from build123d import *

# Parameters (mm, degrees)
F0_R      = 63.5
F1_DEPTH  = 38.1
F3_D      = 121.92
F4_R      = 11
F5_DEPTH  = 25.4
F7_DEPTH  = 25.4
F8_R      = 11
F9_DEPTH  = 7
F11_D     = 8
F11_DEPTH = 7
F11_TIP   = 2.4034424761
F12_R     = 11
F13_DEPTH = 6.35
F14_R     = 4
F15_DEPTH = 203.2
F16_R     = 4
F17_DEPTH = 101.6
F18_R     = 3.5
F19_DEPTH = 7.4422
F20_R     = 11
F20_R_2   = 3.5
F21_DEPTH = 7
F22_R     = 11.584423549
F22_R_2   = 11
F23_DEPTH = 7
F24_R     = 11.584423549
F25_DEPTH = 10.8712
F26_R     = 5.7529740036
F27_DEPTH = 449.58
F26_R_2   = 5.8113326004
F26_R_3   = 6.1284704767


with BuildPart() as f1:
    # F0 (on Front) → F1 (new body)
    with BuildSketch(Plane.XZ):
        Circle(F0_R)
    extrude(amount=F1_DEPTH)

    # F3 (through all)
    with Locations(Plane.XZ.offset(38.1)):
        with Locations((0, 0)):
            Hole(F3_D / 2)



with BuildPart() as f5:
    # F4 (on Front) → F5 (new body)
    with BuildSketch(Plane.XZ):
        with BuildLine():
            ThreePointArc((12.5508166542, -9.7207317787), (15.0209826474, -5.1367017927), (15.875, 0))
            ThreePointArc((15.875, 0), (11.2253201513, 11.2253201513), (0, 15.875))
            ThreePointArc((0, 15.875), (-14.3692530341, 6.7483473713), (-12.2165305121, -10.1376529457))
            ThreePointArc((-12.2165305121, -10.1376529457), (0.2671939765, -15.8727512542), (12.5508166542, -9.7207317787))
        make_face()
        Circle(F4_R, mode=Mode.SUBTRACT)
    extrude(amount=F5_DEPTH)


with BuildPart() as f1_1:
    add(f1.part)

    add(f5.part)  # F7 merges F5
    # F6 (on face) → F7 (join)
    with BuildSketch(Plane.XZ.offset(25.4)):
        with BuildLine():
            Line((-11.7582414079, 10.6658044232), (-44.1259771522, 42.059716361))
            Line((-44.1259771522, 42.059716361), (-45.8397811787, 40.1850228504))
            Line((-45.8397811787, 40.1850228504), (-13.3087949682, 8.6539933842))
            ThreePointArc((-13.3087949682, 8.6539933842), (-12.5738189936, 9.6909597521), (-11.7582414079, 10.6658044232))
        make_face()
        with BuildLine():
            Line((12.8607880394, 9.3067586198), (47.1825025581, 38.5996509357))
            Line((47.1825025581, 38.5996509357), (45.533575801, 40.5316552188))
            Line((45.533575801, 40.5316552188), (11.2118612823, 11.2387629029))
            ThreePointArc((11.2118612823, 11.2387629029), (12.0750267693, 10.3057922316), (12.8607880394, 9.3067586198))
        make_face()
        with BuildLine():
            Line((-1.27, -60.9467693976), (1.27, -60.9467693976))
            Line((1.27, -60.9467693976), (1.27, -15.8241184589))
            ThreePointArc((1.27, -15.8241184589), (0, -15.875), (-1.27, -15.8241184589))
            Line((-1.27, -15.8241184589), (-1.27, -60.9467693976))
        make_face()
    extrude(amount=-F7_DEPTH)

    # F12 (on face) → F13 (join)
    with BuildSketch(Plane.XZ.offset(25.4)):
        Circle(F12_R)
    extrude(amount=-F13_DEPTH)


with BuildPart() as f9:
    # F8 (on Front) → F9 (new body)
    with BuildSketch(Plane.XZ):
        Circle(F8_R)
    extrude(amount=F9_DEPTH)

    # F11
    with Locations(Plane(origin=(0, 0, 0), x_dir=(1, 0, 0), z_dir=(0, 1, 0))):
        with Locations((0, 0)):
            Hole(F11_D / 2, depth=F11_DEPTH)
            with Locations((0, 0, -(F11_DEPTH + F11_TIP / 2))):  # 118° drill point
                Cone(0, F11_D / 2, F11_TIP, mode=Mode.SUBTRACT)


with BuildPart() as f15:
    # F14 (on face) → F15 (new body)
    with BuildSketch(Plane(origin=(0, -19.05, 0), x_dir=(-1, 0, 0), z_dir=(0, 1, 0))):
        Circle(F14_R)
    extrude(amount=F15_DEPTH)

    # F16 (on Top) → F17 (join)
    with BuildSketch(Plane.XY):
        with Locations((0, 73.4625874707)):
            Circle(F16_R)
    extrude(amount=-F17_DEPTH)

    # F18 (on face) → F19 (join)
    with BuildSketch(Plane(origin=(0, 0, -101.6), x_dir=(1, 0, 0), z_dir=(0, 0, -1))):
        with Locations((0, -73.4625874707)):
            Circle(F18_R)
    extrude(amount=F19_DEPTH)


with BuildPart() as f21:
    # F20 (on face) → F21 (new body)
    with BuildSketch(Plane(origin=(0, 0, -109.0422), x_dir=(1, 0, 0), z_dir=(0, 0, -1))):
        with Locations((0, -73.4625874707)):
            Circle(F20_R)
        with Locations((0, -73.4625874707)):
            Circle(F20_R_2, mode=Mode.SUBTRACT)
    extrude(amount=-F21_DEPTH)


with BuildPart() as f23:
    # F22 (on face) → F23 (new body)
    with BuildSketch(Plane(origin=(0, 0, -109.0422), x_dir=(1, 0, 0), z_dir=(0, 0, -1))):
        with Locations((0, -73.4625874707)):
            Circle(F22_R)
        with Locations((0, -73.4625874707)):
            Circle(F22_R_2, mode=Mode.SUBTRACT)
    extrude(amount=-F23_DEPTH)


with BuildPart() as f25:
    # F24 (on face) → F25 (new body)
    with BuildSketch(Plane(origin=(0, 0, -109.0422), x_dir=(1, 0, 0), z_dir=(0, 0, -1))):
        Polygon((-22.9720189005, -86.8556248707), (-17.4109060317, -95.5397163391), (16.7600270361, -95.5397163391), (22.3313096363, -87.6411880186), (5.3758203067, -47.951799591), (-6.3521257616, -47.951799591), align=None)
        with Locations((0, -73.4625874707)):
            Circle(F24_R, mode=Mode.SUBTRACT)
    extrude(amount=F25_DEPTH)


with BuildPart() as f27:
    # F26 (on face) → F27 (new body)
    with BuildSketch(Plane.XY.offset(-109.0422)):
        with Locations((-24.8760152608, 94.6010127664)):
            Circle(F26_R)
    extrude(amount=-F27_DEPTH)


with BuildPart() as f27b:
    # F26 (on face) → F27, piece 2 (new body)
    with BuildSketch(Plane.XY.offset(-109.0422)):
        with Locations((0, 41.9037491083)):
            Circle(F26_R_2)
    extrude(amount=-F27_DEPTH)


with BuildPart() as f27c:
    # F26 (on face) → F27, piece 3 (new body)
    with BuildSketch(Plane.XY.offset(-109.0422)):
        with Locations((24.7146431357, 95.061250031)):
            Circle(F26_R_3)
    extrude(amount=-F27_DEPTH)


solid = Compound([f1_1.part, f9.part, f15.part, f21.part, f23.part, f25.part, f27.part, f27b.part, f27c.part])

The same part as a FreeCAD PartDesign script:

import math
import FreeCAD as App
import Part
import Sketcher

V = App.Vector
Q = App.Units.Quantity

doc = App.newDocument("Part")
params = doc.addObject("Spreadsheet::Sheet", "Params")
for row, (alias, value) in enumerate([
    ("sketch1_diameter", "5 in"),
    ("pad1_length", "1.5 in"),
    ("sketch2_diameter", "4.8 in"),
    ("hole_diameter", "4.8 in"),
    ("sketch3_radius", "0.625 in"),
    ("pad2_length", "1 in"),
    ("sketch4_width", "0.1 in"),
    ("sketch4_radius", "0.625 in"),
    ("sketch4_length", "0.1 in"),
    ("pad3_length", "1 in"),
    ("pad4_length", "0.25 in"),
    ("pad5_length", "7 mm"),
    ("hole2_diameter", "8 mm"),
    ("hole2_depth", "7 mm"),
    ("pad6_length", "8 in"),
    ("pad7_length", "4 in"),
    ("pad8_length", "0.293 in"),
    ("pad9_length", "7 mm"),
    ("pad10_length", "7 mm"),
    ("pad11_length", "0.428 in"),
    ("pad12_length", "17.7 in"),
    ("pad13_length", "17.7 in"),
    ("pad14_length", "17.7 in"),
], start=1):
    params.set(f"A{row}", alias)
    params.set(f"B{row}", "=" + value)
    params.setAlias(f"B{row}", alias)

body = doc.addObject("PartDesign::Body", "Body")

# Sketch on XZ plane
sketch1 = body.newObject("Sketcher::SketchObject", "Sketch")
sketch1.AttachmentSupport = (doc.getObject("XZ_Plane"), [""])
sketch1.MapMode = "FlatFace"
sketch1.addGeometry(Part.Circle(V(0, 0, 0), V(0, 0, 1), 63.5), False)
sketch1.addConstraint([
    Sketcher.Constraint("Coincident", 0, 3, -1, 1),
    Sketcher.Constraint("Diameter", 0, Q("5 in")),
])
sketch1.setExpression("Constraints[1]", "Params.sketch1_diameter")
pad1 = body.newObject("PartDesign::Pad", "Pad")
pad1.Profile = sketch1
pad1.setExpression("Length", "Params.pad1_length")

# Sketch on XZ plane
sketch2 = body.newObject("Sketcher::SketchObject", "Sketch001")
sketch2.AttachmentSupport = (doc.getObject("XZ_Plane"), [""])
sketch2.MapMode = "FlatFace"
sketch2.AttachmentOffset = App.Placement(V(0, 0, 1.5 * 25.4), App.Rotation())
sketch2.addGeometry(Part.Circle(V(0, 0, 0), V(0, 0, 1), 60.96), False)
sketch2.addConstraint([
    Sketcher.Constraint("Coincident", 0, 3, -1, 1),
    Sketcher.Constraint("Diameter", 0, Q("4.8 in")),
])
sketch2.setExpression("Constraints[1]", "Params.sketch2_diameter")
doc.recompute()
hole = body.newObject("PartDesign::Hole", "Hole")
hole.Profile = sketch2
hole.ThreadType = "None"
hole.setExpression("Diameter", "Params.hole_diameter")
hole.DepthType = "ThroughAll"
body2 = doc.addObject("PartDesign::Body", "Body001")

# Sketch on XZ plane
sketch3 = body2.newObject("Sketcher::SketchObject", "Sketch002")
sketch3.AttachmentSupport = (doc.getObject("XZ_Plane001"), [""])
sketch3.MapMode = "FlatFace"
sketch3.addGeometry([
    Part.ArcOfCircle(Part.Circle(V(0, 0, 0), V(0, 0, 1), 15.875), math.radians(-37.758137), math.radians(0)),  # 0
    Part.ArcOfCircle(Part.Circle(V(0, 0, 0), V(0, 0, 1), 15.875), math.radians(0), math.radians(90)),  # 1
    Part.ArcOfCircle(Part.Circle(V(0, 0, 0), V(0, 0, 1), 15.875), math.radians(90), math.radians(219.686932)),  # 2
    Part.ArcOfCircle(Part.Circle(V(0, 0, 0), V(0, 0, 1), 15.875), math.radians(-140.313068), math.radians(-37.758137)),  # 3
    Part.Circle(V(0, 0, 0), V(0, 0, 1), 11),  # 4
], False)
sketch3.addConstraint([
    Sketcher.Constraint("Tangent", 0, 2, 1, 1),
    Sketcher.Constraint("Tangent", 1, 2, 2, 1),
    Sketcher.Constraint("Tangent", 2, 2, 3, 1),
    Sketcher.Constraint("Tangent", 3, 2, 0, 1),
    Sketcher.Constraint("Coincident", 0, 3, -1, 1),
    Sketcher.Constraint("Coincident", 4, 3, -1, 1),
    Sketcher.Constraint("Equal", 0, 1),
    Sketcher.Constraint("PointOnObject", 0, 2, -1),
    Sketcher.Constraint("PointOnObject", 1, 2, -2),
    Sketcher.Constraint("Radius", 0, Q("0.625 in")),
    Sketcher.Constraint("Diameter", 4, 22.0),
    Sketcher.Constraint("DistanceX", 2, 2, -1, 1, 12.216531),
    Sketcher.Constraint("DistanceY", 3, 2, -1, 1, 9.720732),
])
sketch3.setExpression("Constraints[9]", "Params.sketch3_radius")
pad2 = body2.newObject("PartDesign::Pad", "Pad001")
pad2.Profile = sketch3
pad2.setExpression("Length", "Params.pad2_length")
body.AllowCompound = True
doc.recompute()

boolean = body.newObject("PartDesign::Boolean", "Boolean")
boolean.Type = "Fuse"
boolean.addObjects([body2])

# Sketch on XZ plane
sketch4 = body.newObject("Sketcher::SketchObject", "Sketch003")
sketch4.AttachmentSupport = (doc.getObject("XZ_Plane"), [""])
sketch4.MapMode = "FlatFace"
sketch4.AttachmentOffset = App.Placement(V(0, 0, 1 * 25.4), App.Rotation())
sketch4.addGeometry([
    Part.LineSegment(V(-11.758241, 10.665804, 0), V(-44.125977, 42.059716, 0)),  # 0
    Part.LineSegment(V(-44.125977, 42.059716, 0), V(-45.839781, 40.185023, 0)),  # 1
    Part.LineSegment(V(-45.839781, 40.185023, 0), V(-13.308795, 8.653993, 0)),  # 2
    Part.ArcOfCircle(Part.Circle(V(0, 0, 0), V(0, 0, 1), 15.875), math.radians(137.789085), math.radians(146.966217)),  # 3
    Part.LineSegment(V(12.860788, 9.306759, 0), V(47.182503, 38.599651, 0)),  # 4
    Part.LineSegment(V(47.182503, 38.599651, 0), V(45.533576, 40.531655, 0)),  # 5
    Part.LineSegment(V(45.533576, 40.531655, 0), V(11.211861, 11.238763, 0)),  # 6
    Part.ArcOfCircle(Part.Circle(V(0, 0, 0), V(0, 0, 1), 15.875), math.radians(35.891524), math.radians(45.068655)),  # 7
    Part.LineSegment(V(-1.27, -60.946769, 0), V(1.27, -60.946769, 0)),  # 8
    Part.LineSegment(V(1.27, -60.946769, 0), V(1.27, -15.824118, 0)),  # 9
    Part.ArcOfCircle(Part.Circle(V(0, 0, 0), V(0, 0, 1), 15.875), math.radians(-94.588566), math.radians(-85.411434)),  # 10
    Part.LineSegment(V(-1.27, -15.824118, 0), V(-1.27, -60.946769, 0)),  # 11
], False)
sketch4.addConstraint([
    Sketcher.Constraint("Coincident", 0, 2, 1, 1),
    Sketcher.Constraint("Coincident", 1, 2, 2, 1),
    Sketcher.Constraint("Coincident", 2, 2, 3, 2),
    Sketcher.Constraint("Coincident", 3, 1, 0, 1),
    Sketcher.Constraint("Coincident", 4, 2, 5, 1),
    Sketcher.Constraint("Coincident", 5, 2, 6, 1),
    Sketcher.Constraint("Coincident", 6, 2, 7, 2),
    Sketcher.Constraint("Coincident", 7, 1, 4, 1),
    Sketcher.Constraint("Coincident", 8, 2, 9, 1),
    Sketcher.Constraint("Coincident", 9, 2, 10, 2),
    Sketcher.Constraint("Coincident", 10, 1, 11, 1),
    Sketcher.Constraint("Coincident", 11, 2, 8, 1),
    Sketcher.Constraint("Horizontal", 8),
    Sketcher.Constraint("Vertical", 9),
    Sketcher.Constraint("Vertical", 11),
    Sketcher.Constraint("Coincident", 3, 3, -1, 1),
    Sketcher.Constraint("Coincident", 7, 3, -1, 1),
    Sketcher.Constraint("Coincident", 10, 3, -1, 1),
    Sketcher.Constraint("Equal", 3, 7),
    Sketcher.Constraint("Equal", 7, 10),
    Sketcher.Constraint("Perpendicular", 4, 5),
    Sketcher.Constraint("Perpendicular", 5, 6),
    Sketcher.Constraint("Horizontal", 9, 2, 10, 1),
    Sketcher.Constraint("Equal", 1, 5),
    Sketcher.Constraint("Equal", 4, 6),
    Sketcher.Constraint("DistanceX", 8, 1, 8, 2, Q("0.1 in")),
    Sketcher.Constraint("Radius", 3, Q("0.625 in")),
    Sketcher.Constraint("Distance", 1, Q("0.1 in")),
    Sketcher.Constraint("DistanceY", 9, 1, 9, 2, 45.122651),
    Sketcher.Constraint("Distance", 0, 45.091552),
    Sketcher.Constraint("Distance", 4, 45.122651),
    Sketcher.Constraint("DistanceX", 1, 2, -1, 1, 45.839781),
    Sketcher.Constraint("DistanceX", 3, 1, -1, 1, 11.758241),
    Sketcher.Constraint("DistanceY", -1, 1, 4, 2, 38.599651),
    Sketcher.Constraint("DistanceY", 2, 2, 1, 2, 31.531029),
    Sketcher.Constraint("DistanceY", 2, 2, 3, 1, 2.011811),
])
sketch4.setExpression("Constraints[25]", "Params.sketch4_width")
sketch4.setExpression("Constraints[26]", "Params.sketch4_radius")
sketch4.setExpression("Constraints[27]", "Params.sketch4_length")
pad3 = body.newObject("PartDesign::Pad", "Pad002")
pad3.Profile = sketch4
pad3.setExpression("Length", "Params.pad3_length")
pad3.Reversed = True

# Sketch on XZ plane
sketch5 = body.newObject("Sketcher::SketchObject", "Sketch004")
sketch5.AttachmentSupport = (doc.getObject("XZ_Plane"), [""])
sketch5.MapMode = "FlatFace"
sketch5.AttachmentOffset = App.Placement(V(0, 0, 1 * 25.4), App.Rotation())
sketch5.addGeometry(Part.Circle(V(0, 0, 0), V(0, 0, 1), 11), False)
sketch5.addConstraint([
    Sketcher.Constraint("Coincident", 0, 3, -1, 1),
    Sketcher.Constraint("Diameter", 0, 22.0),
])
pad4 = body.newObject("PartDesign::Pad", "Pad003")
pad4.Profile = sketch5
pad4.setExpression("Length", "Params.pad4_length")
pad4.Reversed = True
body3 = doc.addObject("PartDesign::Body", "Body002")

# Sketch on XZ plane
sketch6 = body3.newObject("Sketcher::SketchObject", "Sketch005")
sketch6.AttachmentSupport = (doc.getObject("XZ_Plane002"), [""])
sketch6.MapMode = "FlatFace"
sketch6.addGeometry(Part.Circle(V(0, 0, 0), V(0, 0, 1), 11), False)
sketch6.addConstraint([
    Sketcher.Constraint("Coincident", 0, 3, -1, 1),
    Sketcher.Constraint("Diameter", 0, 22.0),
])
pad5 = body3.newObject("PartDesign::Pad", "Pad004")
pad5.Profile = sketch6
pad5.setExpression("Length", "Params.pad5_length")

# Sketch on XZ plane
sketch7 = body3.newObject("Sketcher::SketchObject", "Sketch006")
sketch7.AttachmentSupport = (doc.getObject("XZ_Plane002"), [""])
sketch7.MapMode = "FlatFace"
sketch7.addGeometry(Part.Circle(V(0, 0, 0), V(0, 0, 1), 4), False)
sketch7.addConstraint([
    Sketcher.Constraint("Coincident", 0, 3, -1, 1),
    Sketcher.Constraint("Diameter", 0, 8.0),
])
doc.recompute()
hole2 = body3.newObject("PartDesign::Hole", "Hole001")
hole2.Profile = sketch7
hole2.ThreadType = "None"
hole2.setExpression("Diameter", "Params.hole2_diameter")
hole2.DepthType = "Dimension"
hole2.setExpression("Depth", "Params.hole2_depth")
hole2.DrillPoint = "Angled"
hole2.DrillPointAngle = 118
hole2.Reversed = True
body4 = doc.addObject("PartDesign::Body", "Body003")

# Sketch on XZ plane
sketch8 = body4.newObject("Sketcher::SketchObject", "Sketch007")
sketch8.AttachmentSupport = (doc.getObject("XZ_Plane003"), [""])
sketch8.MapMode = "FlatFace"
sketch8.AttachmentOffset = App.Placement(V(0, 0, 0.75 * 25.4), App.Rotation())
sketch8.addGeometry(Part.Circle(V(0, 0, 0), V(0, 0, 1), 4), False)
sketch8.addConstraint([
    Sketcher.Constraint("Coincident", 0, 3, -1, 1),
    Sketcher.Constraint("Diameter", 0, 8.0),
])
pad6 = body4.newObject("PartDesign::Pad", "Pad005")
pad6.Profile = sketch8
pad6.setExpression("Length", "Params.pad6_length")
pad6.Reversed = True

# Sketch on XY plane
sketch9 = body4.newObject("Sketcher::SketchObject", "Sketch008")
sketch9.AttachmentSupport = (doc.getObject("XY_Plane003"), [""])
sketch9.MapMode = "FlatFace"
sketch9.addGeometry(Part.Circle(V(0, 73.462587, 0), V(0, 0, 1), 4), False)
sketch9.addConstraint([
    Sketcher.Constraint("PointOnObject", 0, 3, -2),
    Sketcher.Constraint("Diameter", 0, 8.0),
    Sketcher.Constraint("DistanceY", -1, 1, 0, 3, 73.462587),
])
pad7 = body4.newObject("PartDesign::Pad", "Pad006")
pad7.Profile = sketch9
pad7.setExpression("Length", "Params.pad7_length")
pad7.Reversed = True

# Sketch on XY plane
sketch10 = body4.newObject("Sketcher::SketchObject", "Sketch009")
sketch10.AttachmentSupport = (doc.getObject("XY_Plane003"), [""])
sketch10.MapMode = "FlatFace"
sketch10.AttachmentOffset = App.Placement(V(0, 0, -4 * 25.4), App.Rotation())
sketch10.addGeometry(Part.Circle(V(0, 73.462587, 0), V(0, 0, 1), 3.5), False)
sketch10.addConstraint([
    Sketcher.Constraint("PointOnObject", 0, 3, -2),
    Sketcher.Constraint("Diameter", 0, 7.0),
    Sketcher.Constraint("DistanceY", -1, 1, 0, 3, 73.462587),
])
pad8 = body4.newObject("PartDesign::Pad", "Pad007")
pad8.Profile = sketch10
pad8.setExpression("Length", "Params.pad8_length")
pad8.Reversed = True
body5 = doc.addObject("PartDesign::Body", "Body004")

# Sketch on XY plane
sketch11 = body5.newObject("Sketcher::SketchObject", "Sketch010")
sketch11.AttachmentSupport = (doc.getObject("XY_Plane004"), [""])
sketch11.MapMode = "FlatFace"
sketch11.AttachmentOffset = App.Placement(V(0, 0, -4.293 * 25.4), App.Rotation())
sketch11.addGeometry([
    Part.Circle(V(0, 73.462587, 0), V(0, 0, 1), 11),
    Part.Circle(V(0, 73.462587, 0), V(0, 0, 1), 3.5),
], False)
sketch11.addConstraint([
    Sketcher.Constraint("Coincident", 1, 3, 0, 3),
    Sketcher.Constraint("PointOnObject", 0, 3, -2),
    Sketcher.Constraint("Diameter", 0, 22.0),
    Sketcher.Constraint("Diameter", 1, 7.0),
    Sketcher.Constraint("DistanceY", -1, 1, 0, 3, 73.462587),
])
pad9 = body5.newObject("PartDesign::Pad", "Pad008")
pad9.Profile = sketch11
pad9.setExpression("Length", "Params.pad9_length")
body6 = doc.addObject("PartDesign::Body", "Body005")

# Sketch on XY plane
sketch12 = body6.newObject("Sketcher::SketchObject", "Sketch011")
sketch12.AttachmentSupport = (doc.getObject("XY_Plane005"), [""])
sketch12.MapMode = "FlatFace"
sketch12.AttachmentOffset = App.Placement(V(0, 0, -4.293 * 25.4), App.Rotation())
sketch12.addGeometry([
    Part.Circle(V(0, 73.462587, 0), V(0, 0, 1), 11.584424),
    Part.Circle(V(0, 73.462587, 0), V(0, 0, 1), 11),
], False)
sketch12.addConstraint([
    Sketcher.Constraint("Coincident", 1, 3, 0, 3),
    Sketcher.Constraint("PointOnObject", 0, 3, -2),
    Sketcher.Constraint("Diameter", 1, 22.0),
    Sketcher.Constraint("Diameter", 0, 23.168847),
    Sketcher.Constraint("DistanceY", -1, 1, 0, 3, 73.462587),
])
pad10 = body6.newObject("PartDesign::Pad", "Pad009")
pad10.Profile = sketch12
pad10.setExpression("Length", "Params.pad10_length")
body7 = doc.addObject("PartDesign::Body", "Body006")

# Sketch on XY plane
sketch13 = body7.newObject("Sketcher::SketchObject", "Sketch012")
sketch13.AttachmentSupport = (doc.getObject("XY_Plane006"), [""])
sketch13.MapMode = "FlatFace"
sketch13.AttachmentOffset = App.Placement(V(0, 0, -4.293 * 25.4), App.Rotation())
sketch13.addGeometry([
    Part.LineSegment(V(-22.972019, 86.855625, 0), V(-17.410906, 95.539716, 0)),  # 0
    Part.LineSegment(V(-17.410906, 95.539716, 0), V(16.760027, 95.539716, 0)),  # 1
    Part.LineSegment(V(16.760027, 95.539716, 0), V(22.33131, 87.641188, 0)),  # 2
    Part.LineSegment(V(22.33131, 87.641188, 0), V(5.37582, 47.9518, 0)),  # 3
    Part.LineSegment(V(5.37582, 47.9518, 0), V(-6.352126, 47.9518, 0)),  # 4
    Part.LineSegment(V(-6.352126, 47.9518, 0), V(-22.972019, 86.855625, 0)),  # 5
    Part.Circle(V(0, 73.462587, 0), V(0, 0, 1), 11.584424),  # 6
], False)
sketch13.addConstraint([
    Sketcher.Constraint("Coincident", 0, 2, 1, 1),
    Sketcher.Constraint("Coincident", 1, 2, 2, 1),
    Sketcher.Constraint("Coincident", 2, 2, 3, 1),
    Sketcher.Constraint("Coincident", 3, 2, 4, 1),
    Sketcher.Constraint("Coincident", 4, 2, 5, 1),
    Sketcher.Constraint("Coincident", 5, 2, 0, 1),
    Sketcher.Constraint("Horizontal", 1),
    Sketcher.Constraint("Horizontal", 4),
    Sketcher.Constraint("PointOnObject", 6, 3, -2),
    Sketcher.Constraint("Diameter", 6, 23.168847),
    Sketcher.Constraint("Distance", 0, 10.312101),
    Sketcher.Constraint("DistanceY", -1, 1, 3, 2, 47.9518),
    Sketcher.Constraint("DistanceY", 6, 3, 2, 2, 14.178601),
    Sketcher.Constraint("Distance", 2, 9.665709),
    Sketcher.Constraint("DistanceX", 1, 1, 1, 2, 34.170933),
    Sketcher.Constraint("DistanceX", 4, 2, 4, 1, 11.727946),
    Sketcher.Constraint("DistanceX", -1, 1, 2, 2, 22.33131),
    Sketcher.Constraint("DistanceY", -1, 1, 2, 2, 87.641188),
    Sketcher.Constraint("DistanceX", -1, 1, 3, 2, 5.37582),
    Sketcher.Constraint("DistanceX", 5, 2, -1, 1, 22.972019),
    Sketcher.Constraint("DistanceY", 6, 3, 0, 2, 22.077129),
])
pad11 = body7.newObject("PartDesign::Pad", "Pad010")
pad11.Profile = sketch13
pad11.setExpression("Length", "Params.pad11_length")
pad11.Reversed = True
body8 = doc.addObject("PartDesign::Body", "Body007")

# Sketch on XY plane
sketch14 = body8.newObject("Sketcher::SketchObject", "Sketch013")
sketch14.AttachmentSupport = (doc.getObject("XY_Plane007"), [""])
sketch14.MapMode = "FlatFace"
sketch14.AttachmentOffset = App.Placement(V(0, 0, -4.293 * 25.4), App.Rotation())
sketch14.addGeometry(Part.Circle(V(-24.876015, 94.601013, 0), V(0, 0, 1), 5.752974), False)
sketch14.addConstraint([
    Sketcher.Constraint("Diameter", 0, 11.505948),
    Sketcher.Constraint("DistanceX", 0, 3, -1, 1, 24.876015),
    Sketcher.Constraint("DistanceY", -1, 1, 0, 3, 94.601013),
])
pad12 = body8.newObject("PartDesign::Pad", "Pad011")
pad12.Profile = sketch14
pad12.setExpression("Length", "Params.pad12_length")
pad12.Reversed = True
body9 = doc.addObject("PartDesign::Body", "Body008")

# Sketch on XY plane
sketch15 = body9.newObject("Sketcher::SketchObject", "Sketch014")
sketch15.AttachmentSupport = (doc.getObject("XY_Plane008"), [""])
sketch15.MapMode = "FlatFace"
sketch15.AttachmentOffset = App.Placement(V(0, 0, -4.293 * 25.4), App.Rotation())
sketch15.addGeometry(Part.Circle(V(0, 41.903749, 0), V(0, 0, 1), 5.811333), False)
sketch15.addConstraint([
    Sketcher.Constraint("PointOnObject", 0, 3, -2),
    Sketcher.Constraint("Diameter", 0, 11.622665),
    Sketcher.Constraint("DistanceY", -1, 1, 0, 3, 41.903749),
])
pad13 = body9.newObject("PartDesign::Pad", "Pad012")
pad13.Profile = sketch15
pad13.setExpression("Length", "Params.pad13_length")
pad13.Reversed = True
body10 = doc.addObject("PartDesign::Body", "Body009")

# Sketch on XY plane
sketch16 = body10.newObject("Sketcher::SketchObject", "Sketch015")
sketch16.AttachmentSupport = (doc.getObject("XY_Plane009"), [""])
sketch16.MapMode = "FlatFace"
sketch16.AttachmentOffset = App.Placement(V(0, 0, -4.293 * 25.4), App.Rotation())
sketch16.addGeometry(Part.Circle(V(24.714643, 95.06125, 0), V(0, 0, 1), 6.12847), False)
sketch16.addConstraint([
    Sketcher.Constraint("Diameter", 0, 12.256941),
    Sketcher.Constraint("DistanceY", -1, 1, 0, 3, 95.06125),
    Sketcher.Constraint("DistanceX", -1, 1, 0, 3, 24.714643),
])
pad14 = body10.newObject("PartDesign::Pad", "Pad013")
pad14.Profile = sketch16
pad14.setExpression("Length", "Params.pad14_length")
pad14.Reversed = True

doc.recompute()
